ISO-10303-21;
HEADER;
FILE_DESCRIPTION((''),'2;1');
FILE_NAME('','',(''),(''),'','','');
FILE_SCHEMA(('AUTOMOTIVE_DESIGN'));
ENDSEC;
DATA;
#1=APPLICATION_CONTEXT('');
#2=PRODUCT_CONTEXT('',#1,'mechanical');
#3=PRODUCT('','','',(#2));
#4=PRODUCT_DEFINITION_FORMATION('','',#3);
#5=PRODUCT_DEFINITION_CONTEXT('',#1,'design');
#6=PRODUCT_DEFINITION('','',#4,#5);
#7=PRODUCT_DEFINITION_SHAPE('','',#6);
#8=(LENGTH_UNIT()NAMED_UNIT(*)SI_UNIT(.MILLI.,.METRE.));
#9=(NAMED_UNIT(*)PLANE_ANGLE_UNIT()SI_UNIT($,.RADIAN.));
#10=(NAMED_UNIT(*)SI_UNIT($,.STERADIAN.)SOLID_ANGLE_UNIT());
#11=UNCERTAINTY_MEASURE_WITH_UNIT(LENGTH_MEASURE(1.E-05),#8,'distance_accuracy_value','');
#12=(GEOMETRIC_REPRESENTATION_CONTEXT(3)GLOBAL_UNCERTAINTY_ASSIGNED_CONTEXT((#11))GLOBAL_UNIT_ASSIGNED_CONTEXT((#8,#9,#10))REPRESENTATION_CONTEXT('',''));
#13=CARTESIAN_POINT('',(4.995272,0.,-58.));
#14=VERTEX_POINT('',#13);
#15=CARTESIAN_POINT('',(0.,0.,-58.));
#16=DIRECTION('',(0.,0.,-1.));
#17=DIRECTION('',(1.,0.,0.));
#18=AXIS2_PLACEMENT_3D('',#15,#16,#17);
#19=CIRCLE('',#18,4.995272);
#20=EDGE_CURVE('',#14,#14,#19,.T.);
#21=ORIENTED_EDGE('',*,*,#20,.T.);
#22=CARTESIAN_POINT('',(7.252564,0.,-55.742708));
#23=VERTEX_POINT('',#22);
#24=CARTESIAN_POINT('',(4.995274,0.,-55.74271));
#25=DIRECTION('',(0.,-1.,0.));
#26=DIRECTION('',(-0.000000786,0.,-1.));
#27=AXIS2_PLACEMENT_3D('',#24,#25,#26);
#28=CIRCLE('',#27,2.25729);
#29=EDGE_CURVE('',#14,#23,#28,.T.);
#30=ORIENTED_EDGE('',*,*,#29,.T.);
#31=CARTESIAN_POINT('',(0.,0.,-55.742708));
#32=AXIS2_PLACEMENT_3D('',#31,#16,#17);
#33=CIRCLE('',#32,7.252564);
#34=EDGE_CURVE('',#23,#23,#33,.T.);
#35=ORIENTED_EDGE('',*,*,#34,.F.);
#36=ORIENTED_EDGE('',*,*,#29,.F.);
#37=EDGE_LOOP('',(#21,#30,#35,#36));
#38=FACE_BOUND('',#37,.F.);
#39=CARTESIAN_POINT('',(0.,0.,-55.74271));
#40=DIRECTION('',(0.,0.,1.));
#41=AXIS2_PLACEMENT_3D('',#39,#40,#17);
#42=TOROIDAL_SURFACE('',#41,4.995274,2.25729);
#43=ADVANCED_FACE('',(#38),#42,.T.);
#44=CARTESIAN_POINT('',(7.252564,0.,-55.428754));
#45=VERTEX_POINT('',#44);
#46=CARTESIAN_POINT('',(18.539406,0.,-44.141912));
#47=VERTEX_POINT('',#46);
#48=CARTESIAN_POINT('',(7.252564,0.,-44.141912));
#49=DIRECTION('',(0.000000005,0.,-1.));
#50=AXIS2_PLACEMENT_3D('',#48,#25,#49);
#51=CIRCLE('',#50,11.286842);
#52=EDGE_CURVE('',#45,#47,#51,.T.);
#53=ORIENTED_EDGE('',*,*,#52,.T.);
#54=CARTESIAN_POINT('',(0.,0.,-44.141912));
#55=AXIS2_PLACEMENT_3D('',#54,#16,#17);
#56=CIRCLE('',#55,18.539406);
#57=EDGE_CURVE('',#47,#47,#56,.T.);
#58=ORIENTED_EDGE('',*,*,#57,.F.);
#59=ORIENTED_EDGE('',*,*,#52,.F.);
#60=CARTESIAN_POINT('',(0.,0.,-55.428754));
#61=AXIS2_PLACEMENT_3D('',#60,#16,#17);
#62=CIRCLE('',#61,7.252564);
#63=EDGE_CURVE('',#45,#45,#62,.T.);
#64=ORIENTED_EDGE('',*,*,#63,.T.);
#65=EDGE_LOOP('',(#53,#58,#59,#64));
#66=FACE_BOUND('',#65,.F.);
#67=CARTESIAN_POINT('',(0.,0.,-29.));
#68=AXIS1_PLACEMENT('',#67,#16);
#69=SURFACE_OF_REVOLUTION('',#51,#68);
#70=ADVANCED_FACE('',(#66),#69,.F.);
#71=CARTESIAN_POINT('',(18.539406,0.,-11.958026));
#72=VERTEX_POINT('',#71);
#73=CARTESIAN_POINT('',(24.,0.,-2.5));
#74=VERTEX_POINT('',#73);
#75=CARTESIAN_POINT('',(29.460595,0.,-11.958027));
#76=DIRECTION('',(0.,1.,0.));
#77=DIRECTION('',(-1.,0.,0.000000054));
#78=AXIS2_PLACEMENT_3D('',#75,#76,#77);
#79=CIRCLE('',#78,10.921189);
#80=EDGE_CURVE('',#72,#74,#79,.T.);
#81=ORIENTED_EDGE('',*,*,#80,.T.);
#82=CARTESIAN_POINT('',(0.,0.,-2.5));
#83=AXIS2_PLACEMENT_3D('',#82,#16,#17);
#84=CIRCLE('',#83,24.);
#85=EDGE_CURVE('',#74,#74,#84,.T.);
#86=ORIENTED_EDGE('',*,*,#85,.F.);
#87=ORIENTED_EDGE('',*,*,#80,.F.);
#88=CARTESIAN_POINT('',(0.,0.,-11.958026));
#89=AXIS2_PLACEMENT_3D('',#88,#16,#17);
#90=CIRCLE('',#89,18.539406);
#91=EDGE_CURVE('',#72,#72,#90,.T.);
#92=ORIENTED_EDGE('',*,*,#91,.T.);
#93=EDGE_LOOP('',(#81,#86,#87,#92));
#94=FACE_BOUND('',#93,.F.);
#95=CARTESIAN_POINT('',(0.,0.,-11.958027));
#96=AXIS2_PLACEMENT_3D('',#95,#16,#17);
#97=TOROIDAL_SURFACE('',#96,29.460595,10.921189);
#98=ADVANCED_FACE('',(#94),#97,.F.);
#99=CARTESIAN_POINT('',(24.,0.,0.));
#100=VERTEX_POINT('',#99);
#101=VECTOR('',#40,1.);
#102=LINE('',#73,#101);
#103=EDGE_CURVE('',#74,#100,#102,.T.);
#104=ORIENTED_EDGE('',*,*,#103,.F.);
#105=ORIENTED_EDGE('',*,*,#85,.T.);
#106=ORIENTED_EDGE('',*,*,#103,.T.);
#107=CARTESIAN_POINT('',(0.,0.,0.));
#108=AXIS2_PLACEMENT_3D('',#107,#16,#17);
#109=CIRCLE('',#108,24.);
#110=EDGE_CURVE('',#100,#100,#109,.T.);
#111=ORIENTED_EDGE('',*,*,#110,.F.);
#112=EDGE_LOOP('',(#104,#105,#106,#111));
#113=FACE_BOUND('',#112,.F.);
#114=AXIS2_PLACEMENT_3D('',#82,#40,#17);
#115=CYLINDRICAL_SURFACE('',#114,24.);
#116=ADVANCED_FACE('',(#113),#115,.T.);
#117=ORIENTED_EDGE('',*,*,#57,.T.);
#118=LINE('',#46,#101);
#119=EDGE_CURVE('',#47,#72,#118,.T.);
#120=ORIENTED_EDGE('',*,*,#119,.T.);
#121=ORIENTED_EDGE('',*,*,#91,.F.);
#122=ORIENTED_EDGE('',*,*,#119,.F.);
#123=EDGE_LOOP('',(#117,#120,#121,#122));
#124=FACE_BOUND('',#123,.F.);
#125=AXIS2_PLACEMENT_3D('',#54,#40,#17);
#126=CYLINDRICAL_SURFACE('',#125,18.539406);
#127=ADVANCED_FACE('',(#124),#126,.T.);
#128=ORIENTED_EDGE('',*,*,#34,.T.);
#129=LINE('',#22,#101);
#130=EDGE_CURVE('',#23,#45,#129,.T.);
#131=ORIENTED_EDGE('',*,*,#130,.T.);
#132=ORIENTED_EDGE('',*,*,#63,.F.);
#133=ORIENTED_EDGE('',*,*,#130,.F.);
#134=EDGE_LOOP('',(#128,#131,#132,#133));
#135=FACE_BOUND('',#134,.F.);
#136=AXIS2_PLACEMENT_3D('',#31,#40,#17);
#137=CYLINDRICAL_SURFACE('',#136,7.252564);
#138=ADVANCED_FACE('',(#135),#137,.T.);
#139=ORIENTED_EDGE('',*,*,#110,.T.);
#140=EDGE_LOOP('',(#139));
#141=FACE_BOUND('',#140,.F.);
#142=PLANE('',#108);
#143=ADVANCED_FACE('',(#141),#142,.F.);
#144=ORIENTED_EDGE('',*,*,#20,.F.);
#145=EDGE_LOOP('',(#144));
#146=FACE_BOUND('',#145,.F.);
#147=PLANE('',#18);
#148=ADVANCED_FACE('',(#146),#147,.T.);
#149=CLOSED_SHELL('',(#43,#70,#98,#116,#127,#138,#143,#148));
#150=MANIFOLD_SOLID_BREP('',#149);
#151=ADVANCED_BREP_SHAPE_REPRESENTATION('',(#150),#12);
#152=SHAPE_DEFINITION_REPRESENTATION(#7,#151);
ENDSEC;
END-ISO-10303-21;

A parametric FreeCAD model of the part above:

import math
import FreeCAD as App
import Part
import Sketcher
from FreeCAD import Vector

doc = App.newDocument("Part")
body = doc.addObject("PartDesign::Body", "Body")

# Sketch on XZ plane
sketch1 = doc.addObject("Sketcher::SketchObject", "Sketch")
body.addObject(sketch1)
sketch1.AttachmentSupport = (doc.XZ_Plane, [""])
sketch1.MapMode = "FlatFace"
sketch1.addGeometry(Part.LineSegment(Vector(24, 0, 0), Vector(0, 0, 0)), False)
sketch1.addGeometry(Part.LineSegment(Vector(0, 0, 0), Vector(0, -58, 0)), False)
sketch1.addGeometry(Part.LineSegment(Vector(0, -58, 0), Vector(5, -58, 0)), False)
sketch1.addGeometry(Part.ArcOfCircle(Part.Circle(Vector(5, -55.74, 0), Vector(0, 0, 1), 2.26), math.radians(-90), math.radians(0)), False)
sketch1.addGeometry(Part.LineSegment(Vector(7.25, -55.74, 0), Vector(7.25, -55.43, 0)), False)
sketch1.addGeometry(Part.ArcOfCircle(Part.Circle(Vector(7.25, -44.14, 0), Vector(0, 0, 1), 11.29), math.radians(-90), math.radians(0)), False)
sketch1.addGeometry(Part.LineSegment(Vector(18.54, -44.14, 0), Vector(18.54, -11.96, 0)), False)
sketch1.addGeometry(Part.ArcOfCircle(Part.Circle(Vector(29.46, -11.96, 0), Vector(0, 0, 1), 10.92), math.radians(120), math.radians(180)), False)
sketch1.addGeometry(Part.LineSegment(Vector(24, -2.5, 0), Vector(24, 0, 0)), False)
sketch1.addConstraint(Sketcher.Constraint("Coincident", 0, 2, 1, 1))
sketch1.addConstraint(Sketcher.Constraint("Coincident", 1, 2, 2, 1))
sketch1.addConstraint(Sketcher.Constraint("Tangent", 2, 2, 3, 1))
sketch1.addConstraint(Sketcher.Constraint("Tangent", 3, 2, 4, 1))
sketch1.addConstraint(Sketcher.Constraint("Coincident", 4, 2, 5, 1))
sketch1.addConstraint(Sketcher.Constraint("Tangent", 5, 2, 6, 1))
sketch1.addConstraint(Sketcher.Constraint("Tangent", 6, 2, 7, 2))
sketch1.addConstraint(Sketcher.Constraint("Coincident", 7, 1, 8, 1))
sketch1.addConstraint(Sketcher.Constraint("Coincident", 8, 2, 0, 1))
sketch1.addConstraint(Sketcher.Constraint("Horizontal", 0))
sketch1.addConstraint(Sketcher.Constraint("Vertical", 1))
sketch1.addConstraint(Sketcher.Constraint("Horizontal", 2))
sketch1.addConstraint(Sketcher.Constraint("Vertical", 4))
sketch1.addConstraint(Sketcher.Constraint("Vertical", 6))
sketch1.addConstraint(Sketcher.Constraint("Vertical", 8))
sketch1.addConstraint(Sketcher.Constraint("Coincident", 0, 2, -1, 1))
sketch1.addConstraint(Sketcher.Constraint("Vertical", 5, 3, 3, 2))
sketch1.addConstraint(Sketcher.Constraint("DistanceX", 0, 2, 0, 1, 24.0))
sketch1.addConstraint(Sketcher.Constraint("DistanceY", 1, 2, 1, 1, 58.0))
sketch1.addConstraint(Sketcher.Constraint("DistanceY", 8, 1, 8, 2, 2.5))
sketch1.addConstraint(Sketcher.Constraint("Radius", 3, 2.25729))
sketch1.addConstraint(Sketcher.Constraint("Radius", 7, 10.921189))
sketch1.addConstraint(Sketcher.Constraint("Radius", 5, 11.286842))
sketch1.addConstraint(Sketcher.Constraint("DistanceX", 2, 1, 2, 2, 4.995272))
sketch1.addConstraint(Sketcher.Constraint("DistanceY", 4, 1, 4, 2, 0.313954))
revolution = doc.addObject("PartDesign::Revolution", "Revolution")
body.addObject(revolution)
revolution.Profile = sketch1
revolution.ReferenceAxis = (sketch1, ["V_Axis"])
revolution.Angle = 360

doc.recompute()
